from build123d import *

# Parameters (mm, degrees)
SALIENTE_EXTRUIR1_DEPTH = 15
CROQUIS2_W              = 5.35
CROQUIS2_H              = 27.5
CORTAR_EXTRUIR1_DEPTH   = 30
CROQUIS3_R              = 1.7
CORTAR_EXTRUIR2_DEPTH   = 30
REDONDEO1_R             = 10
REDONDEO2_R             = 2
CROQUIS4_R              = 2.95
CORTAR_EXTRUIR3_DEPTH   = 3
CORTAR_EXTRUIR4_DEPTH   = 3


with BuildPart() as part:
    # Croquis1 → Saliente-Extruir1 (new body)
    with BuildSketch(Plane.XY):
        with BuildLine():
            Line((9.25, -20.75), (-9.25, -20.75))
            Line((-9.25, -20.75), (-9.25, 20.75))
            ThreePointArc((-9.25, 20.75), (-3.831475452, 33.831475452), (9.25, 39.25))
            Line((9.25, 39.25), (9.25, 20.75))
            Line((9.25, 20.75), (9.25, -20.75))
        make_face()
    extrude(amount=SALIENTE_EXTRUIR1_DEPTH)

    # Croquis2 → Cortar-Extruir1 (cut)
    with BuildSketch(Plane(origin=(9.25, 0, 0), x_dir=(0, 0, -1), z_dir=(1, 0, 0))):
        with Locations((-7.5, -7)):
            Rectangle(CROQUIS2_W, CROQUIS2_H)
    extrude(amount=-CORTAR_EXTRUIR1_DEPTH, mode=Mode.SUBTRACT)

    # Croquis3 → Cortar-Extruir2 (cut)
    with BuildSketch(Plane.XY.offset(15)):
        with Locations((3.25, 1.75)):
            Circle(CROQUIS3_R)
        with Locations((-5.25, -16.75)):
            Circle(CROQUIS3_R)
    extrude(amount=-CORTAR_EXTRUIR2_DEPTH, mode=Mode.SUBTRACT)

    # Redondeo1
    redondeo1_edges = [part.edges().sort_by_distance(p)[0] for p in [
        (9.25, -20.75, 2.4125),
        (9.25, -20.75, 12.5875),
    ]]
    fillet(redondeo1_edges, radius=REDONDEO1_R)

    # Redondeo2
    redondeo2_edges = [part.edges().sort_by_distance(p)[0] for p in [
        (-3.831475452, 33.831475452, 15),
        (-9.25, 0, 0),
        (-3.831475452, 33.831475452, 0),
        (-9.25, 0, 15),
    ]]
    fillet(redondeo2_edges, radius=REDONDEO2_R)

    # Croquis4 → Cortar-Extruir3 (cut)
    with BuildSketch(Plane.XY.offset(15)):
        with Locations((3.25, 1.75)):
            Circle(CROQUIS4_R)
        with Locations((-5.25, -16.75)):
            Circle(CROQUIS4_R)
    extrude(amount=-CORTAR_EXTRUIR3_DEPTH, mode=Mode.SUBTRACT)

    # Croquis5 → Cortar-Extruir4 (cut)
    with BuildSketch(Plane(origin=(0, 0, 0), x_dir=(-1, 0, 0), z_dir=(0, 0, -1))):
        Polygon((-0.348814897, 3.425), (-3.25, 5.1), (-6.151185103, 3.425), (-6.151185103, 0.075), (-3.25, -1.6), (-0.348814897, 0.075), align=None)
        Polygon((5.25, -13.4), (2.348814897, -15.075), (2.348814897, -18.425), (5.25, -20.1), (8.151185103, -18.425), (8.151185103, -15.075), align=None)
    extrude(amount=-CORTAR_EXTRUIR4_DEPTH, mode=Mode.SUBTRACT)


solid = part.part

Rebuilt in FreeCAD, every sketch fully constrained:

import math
import FreeCAD as App
import Part
import Sketcher
from FreeCAD import Vector
Q = App.Units.Quantity


def edges_at(feature, points):
    """Names of the edges that pass closest to the given points."""
    edges = feature.Shape.Edges
    near = lambda p: min(range(len(edges)), key=lambda i: edges[i].distToShape(Part.Vertex(*p))[0])
    return sorted({f"Edge{near(p) + 1}" for p in points})


def add_polygon(sketch, points):
    """Adds a closed chain of lines whose ends are joined by coincident constraints."""
    first, n = sketch.GeometryCount, len(points)
    for a, b in zip(points, points[1:] + points[:1]):
        sketch.addGeometry(Part.LineSegment(App.Vector(*a, 0), App.Vector(*b, 0)), False)
    for i in range(n):
        sketch.addConstraint(Sketcher.Constraint("Coincident", first + i, 2, first + (i + 1) % n, 1))

doc = App.newDocument("Part")
body = doc.addObject("PartDesign::Body", "Body")

# Sketch on XY plane
sketch1 = body.newObject("Sketcher::SketchObject", "Sketch")
sketch1.AttachmentSupport = (doc.getObject("XY_Plane"), [""])
sketch1.MapMode = "FlatFace"
sketch1.addGeometry(Part.LineSegment(Vector(-9, -21, 0), Vector(9, -21, 0)), False)
sketch1.addGeometry(Part.LineSegment(Vector(9, -21, 0), Vector(9, 39, 0)), False)
sketch1.addGeometry(Part.ArcOfCircle(Part.Circle(Vector(9, 21, 0), Vector(0, 0, 1), 18), math.radians(90), math.radians(180)), False)
sketch1.addGeometry(Part.LineSegment(Vector(-9, 21, 0), Vector(-9, -21, 0)), False)
sketch1.addConstraint(Sketcher.Constraint("Coincident", 0, 2, 1, 1))
sketch1.addConstraint(Sketcher.Constraint("Coincident", 1, 2, 2, 1))
sketch1.addConstraint(Sketcher.Constraint("Tangent", 2, 2, 3, 1))
sketch1.addConstraint(Sketcher.Constraint("Coincident", 3, 2, 0, 1))
sketch1.addConstraint(Sketcher.Constraint("Horizontal", 0))
sketch1.addConstraint(Sketcher.Constraint("Vertical", 1))
sketch1.addConstraint(Sketcher.Constraint("Vertical", 3))
sketch1.addConstraint(Sketcher.Constraint("Symmetric", 0, 2, 2, 2, -1, 1))
sketch1.addConstraint(Sketcher.Constraint("Vertical", 2, 3, 0, 2))
sketch1.addConstraint(Sketcher.Constraint("Radius", 2, Q("18.5 mm")))
sketch1.addConstraint(Sketcher.Constraint("DistanceY", 1, 1, 1, 2, Q("60 mm")))
pad1 = body.newObject("PartDesign::Pad", "Pad")
pad1.Profile = sketch1
pad1.Length = 15

# Sketch on YZ plane
sketch2 = body.newObject("Sketcher::SketchObject", "Sketch001")
sketch2.AttachmentSupport = (doc.getObject("YZ_Plane"), [""])
sketch2.MapMode = "FlatFace"
sketch2.AttachmentOffset = App.Placement(Vector(0, 0, 9.25), App.Rotation())
add_polygon(sketch2, [(7, 10), (-21, 10), (-21, 5), (7, 5)])  # lines 0-3
sketch2.addConstraint(Sketcher.Constraint("Horizontal", 0))
sketch2.addConstraint(Sketcher.Constraint("Vertical", 1))
sketch2.addConstraint(Sketcher.Constraint("Horizontal", 2))
sketch2.addConstraint(Sketcher.Constraint("Vertical", 3))
sketch2.addConstraint(Sketcher.Constraint("DistanceX", 0, 2, 0, 1, Q("27.5 mm")))
sketch2.addConstraint(Sketcher.Constraint("DistanceY", 1, 2, 1, 1, Q("5.35 mm")))
sketch2.addConstraint(Sketcher.Constraint("DistanceX", 0, 2, -1, 1, Q("20.75 mm")))
sketch2.addConstraint(Sketcher.Constraint("DistanceY", -1, 1, 0, 2, Q("10.175 mm")))
pocket1 = body.newObject("PartDesign::Pocket", "Pocket")
pocket1.Profile = sketch2
pocket1.Length = 30

# Sketch on XY plane
sketch3 = body.newObject("Sketcher::SketchObject", "Sketch002")
sketch3.AttachmentSupport = (doc.getObject("XY_Plane"), [""])
sketch3.MapMode = "FlatFace"
sketch3.AttachmentOffset = App.Placement(Vector(0, 0, 15), App.Rotation())
sketch3.addGeometry(Part.Circle(Vector(3.2, 1.8, 0), Vector(0, 0, 1), 1.7), False)
sketch3.addGeometry(Part.Circle(Vector(-5.2, -16.8, 0), Vector(0, 0, 1), 1.7), False)
sketch3.addConstraint(Sketcher.Constraint("Equal", 0, 1))
sketch3.addConstraint(Sketcher.Constraint("Diameter", 0, Q("3.4 mm")))
sketch3.addConstraint(Sketcher.Constraint("DistanceX", 1, 3, 0, 3, Q("8.5 mm")))
sketch3.addConstraint(Sketcher.Constraint("DistanceY", 1, 3, 0, 3, Q("18.5 mm")))
sketch3.addConstraint(Sketcher.Constraint("DistanceX", -1, 1, 0, 3, Q("3.25 mm")))
sketch3.addConstraint(Sketcher.Constraint("DistanceY", -1, 1, 0, 3, Q("1.75 mm")))
pocket2 = body.newObject("PartDesign::Pocket", "Pocket001")
pocket2.Profile = sketch3
pocket2.Length = 30
doc.recompute()

fillet = body.newObject("PartDesign::Fillet", "Fillet")
fillet.Base = (pocket2, edges_at(pocket2, [(9.25, -20.75, 2.413), (9.25, -20.75, 12.588)]))
fillet.Radius = 10
doc.recompute()

fillet2 = body.newObject("PartDesign::Fillet", "Fillet001")
fillet2.Base = (fillet, edges_at(fillet, [
    (-3.831, 33.831, 15),
    (-9.25, 0, 0),
    (-3.831, 33.831, 0),
    (-9.25, 0, 15),
]))
fillet2.Radius = 2

# Sketch on XY plane
sketch4 = body.newObject("Sketcher::SketchObject", "Sketch003")
sketch4.AttachmentSupport = (doc.getObject("XY_Plane"), [""])
sketch4.MapMode = "FlatFace"
sketch4.AttachmentOffset = App.Placement(Vector(0, 0, 15), App.Rotation())
sketch4.addGeometry(Part.Circle(Vector(3.2, 1.8, 0), Vector(0, 0, 1), 3), False)
sketch4.addGeometry(Part.Circle(Vector(-5.2, -16.8, 0), Vector(0, 0, 1), 3), False)
sketch4.addConstraint(Sketcher.Constraint("Equal", 0, 1))
sketch4.addConstraint(Sketcher.Constraint("Diameter", 0, Q("5.9 mm")))
sketch4.addConstraint(Sketcher.Constraint("DistanceX", 1, 3, 0, 3, Q("8.5 mm")))
sketch4.addConstraint(Sketcher.Constraint("DistanceY", 1, 3, 0, 3, Q("18.5 mm")))
sketch4.addConstraint(Sketcher.Constraint("DistanceX", -1, 1, 0, 3, Q("3.25 mm")))
sketch4.addConstraint(Sketcher.Constraint("DistanceY", -1, 1, 0, 3, Q("1.75 mm")))
pocket3 = body.newObject("PartDesign::Pocket", "Pocket002")
pocket3.Profile = sketch4
pocket3.Length = 3

# Sketch on XY plane
sketch5 = body.newObject("Sketcher::SketchObject", "Sketch004")
sketch5.AttachmentSupport = (doc.getObject("XY_Plane"), [""])
sketch5.MapMode = "FlatFace"
add_polygon(sketch5, [(0.3, 3.4), (3.2, 5.1), (6.2, 3.4), (6.2, 0.1), (3.2, -1.6), (0.3, 0.1)])  # lines 0-5
add_polygon(sketch5, [(-5.2, -13.4), (-2.3, -15.1), (-2.3, -18.4), (-5.2, -20.1), (-8.2, -18.4), (-8.2, -15.1)])  # lines 6-11
sketch5.addConstraint(Sketcher.Constraint("Vertical", 2))
sketch5.addConstraint(Sketcher.Constraint("Vertical", 5))
sketch5.addConstraint(Sketcher.Constraint("Vertical", 7))
sketch5.addConstraint(Sketcher.Constraint("Vertical", 10))
sketch5.addConstraint(Sketcher.Constraint("Parallel", 0, 3))
sketch5.addConstraint(Sketcher.Constraint("Parallel", 1, 4))
sketch5.addConstraint(Sketcher.Constraint("Parallel", 4, 6))
sketch5.addConstraint(Sketcher.Constraint("Parallel", 3, 8))
sketch5.addConstraint(Sketcher.Constraint("Parallel", 6, 9))
sketch5.addConstraint(Sketcher.Constraint("Parallel", 8, 11))
sketch5.addConstraint(Sketcher.Constraint("Horizontal", 2, 2, 4, 2))
sketch5.addConstraint(Sketcher.Constraint("Horizontal", 1, 2, 5, 2))
sketch5.addConstraint(Sketcher.Constraint("Horizontal", 7, 2, 9, 2))
sketch5.addConstraint(Sketcher.Constraint("Horizontal", 6, 2, 10, 2))
sketch5.addConstraint(Sketcher.Constraint("Vertical", 0, 2, 3, 2))
sketch5.addConstraint(Sketcher.Constraint("Equal", 5, 7))
sketch5.addConstraint(Sketcher.Constraint("Equal", 4, 6))
sketch5.addConstraint(Sketcher.Constraint("Angle", 0, Q("30 deg")))
sketch5.addConstraint(Sketcher.Constraint("DistanceY", 2, 2, 2, 1, Q("3.35 mm")))
sketch5.addConstraint(Sketcher.Constraint("DistanceY", -1, 1, 0, 2, Q("5.1 mm")))
sketch5.addConstraint(Sketcher.Constraint("DistanceY", 3, 2, -1, 1, Q("1.6 mm")))
sketch5.addConstraint(Sketcher.Constraint("DistanceY", 8, 2, -1, 1, Q("20.1 mm")))
sketch5.addConstraint(Sketcher.Constraint("DistanceX", 6, 2, 2, 2, Q("8.5 mm")))
sketch5.addConstraint(Sketcher.Constraint("DistanceX", -1, 1, 0, 2, Q("3.25 mm")))
pocket4 = body.newObject("PartDesign::Pocket", "Pocket003")
pocket4.Profile = sketch5
pocket4.Length = 3
pocket4.Reversed = True

doc.recompute()
